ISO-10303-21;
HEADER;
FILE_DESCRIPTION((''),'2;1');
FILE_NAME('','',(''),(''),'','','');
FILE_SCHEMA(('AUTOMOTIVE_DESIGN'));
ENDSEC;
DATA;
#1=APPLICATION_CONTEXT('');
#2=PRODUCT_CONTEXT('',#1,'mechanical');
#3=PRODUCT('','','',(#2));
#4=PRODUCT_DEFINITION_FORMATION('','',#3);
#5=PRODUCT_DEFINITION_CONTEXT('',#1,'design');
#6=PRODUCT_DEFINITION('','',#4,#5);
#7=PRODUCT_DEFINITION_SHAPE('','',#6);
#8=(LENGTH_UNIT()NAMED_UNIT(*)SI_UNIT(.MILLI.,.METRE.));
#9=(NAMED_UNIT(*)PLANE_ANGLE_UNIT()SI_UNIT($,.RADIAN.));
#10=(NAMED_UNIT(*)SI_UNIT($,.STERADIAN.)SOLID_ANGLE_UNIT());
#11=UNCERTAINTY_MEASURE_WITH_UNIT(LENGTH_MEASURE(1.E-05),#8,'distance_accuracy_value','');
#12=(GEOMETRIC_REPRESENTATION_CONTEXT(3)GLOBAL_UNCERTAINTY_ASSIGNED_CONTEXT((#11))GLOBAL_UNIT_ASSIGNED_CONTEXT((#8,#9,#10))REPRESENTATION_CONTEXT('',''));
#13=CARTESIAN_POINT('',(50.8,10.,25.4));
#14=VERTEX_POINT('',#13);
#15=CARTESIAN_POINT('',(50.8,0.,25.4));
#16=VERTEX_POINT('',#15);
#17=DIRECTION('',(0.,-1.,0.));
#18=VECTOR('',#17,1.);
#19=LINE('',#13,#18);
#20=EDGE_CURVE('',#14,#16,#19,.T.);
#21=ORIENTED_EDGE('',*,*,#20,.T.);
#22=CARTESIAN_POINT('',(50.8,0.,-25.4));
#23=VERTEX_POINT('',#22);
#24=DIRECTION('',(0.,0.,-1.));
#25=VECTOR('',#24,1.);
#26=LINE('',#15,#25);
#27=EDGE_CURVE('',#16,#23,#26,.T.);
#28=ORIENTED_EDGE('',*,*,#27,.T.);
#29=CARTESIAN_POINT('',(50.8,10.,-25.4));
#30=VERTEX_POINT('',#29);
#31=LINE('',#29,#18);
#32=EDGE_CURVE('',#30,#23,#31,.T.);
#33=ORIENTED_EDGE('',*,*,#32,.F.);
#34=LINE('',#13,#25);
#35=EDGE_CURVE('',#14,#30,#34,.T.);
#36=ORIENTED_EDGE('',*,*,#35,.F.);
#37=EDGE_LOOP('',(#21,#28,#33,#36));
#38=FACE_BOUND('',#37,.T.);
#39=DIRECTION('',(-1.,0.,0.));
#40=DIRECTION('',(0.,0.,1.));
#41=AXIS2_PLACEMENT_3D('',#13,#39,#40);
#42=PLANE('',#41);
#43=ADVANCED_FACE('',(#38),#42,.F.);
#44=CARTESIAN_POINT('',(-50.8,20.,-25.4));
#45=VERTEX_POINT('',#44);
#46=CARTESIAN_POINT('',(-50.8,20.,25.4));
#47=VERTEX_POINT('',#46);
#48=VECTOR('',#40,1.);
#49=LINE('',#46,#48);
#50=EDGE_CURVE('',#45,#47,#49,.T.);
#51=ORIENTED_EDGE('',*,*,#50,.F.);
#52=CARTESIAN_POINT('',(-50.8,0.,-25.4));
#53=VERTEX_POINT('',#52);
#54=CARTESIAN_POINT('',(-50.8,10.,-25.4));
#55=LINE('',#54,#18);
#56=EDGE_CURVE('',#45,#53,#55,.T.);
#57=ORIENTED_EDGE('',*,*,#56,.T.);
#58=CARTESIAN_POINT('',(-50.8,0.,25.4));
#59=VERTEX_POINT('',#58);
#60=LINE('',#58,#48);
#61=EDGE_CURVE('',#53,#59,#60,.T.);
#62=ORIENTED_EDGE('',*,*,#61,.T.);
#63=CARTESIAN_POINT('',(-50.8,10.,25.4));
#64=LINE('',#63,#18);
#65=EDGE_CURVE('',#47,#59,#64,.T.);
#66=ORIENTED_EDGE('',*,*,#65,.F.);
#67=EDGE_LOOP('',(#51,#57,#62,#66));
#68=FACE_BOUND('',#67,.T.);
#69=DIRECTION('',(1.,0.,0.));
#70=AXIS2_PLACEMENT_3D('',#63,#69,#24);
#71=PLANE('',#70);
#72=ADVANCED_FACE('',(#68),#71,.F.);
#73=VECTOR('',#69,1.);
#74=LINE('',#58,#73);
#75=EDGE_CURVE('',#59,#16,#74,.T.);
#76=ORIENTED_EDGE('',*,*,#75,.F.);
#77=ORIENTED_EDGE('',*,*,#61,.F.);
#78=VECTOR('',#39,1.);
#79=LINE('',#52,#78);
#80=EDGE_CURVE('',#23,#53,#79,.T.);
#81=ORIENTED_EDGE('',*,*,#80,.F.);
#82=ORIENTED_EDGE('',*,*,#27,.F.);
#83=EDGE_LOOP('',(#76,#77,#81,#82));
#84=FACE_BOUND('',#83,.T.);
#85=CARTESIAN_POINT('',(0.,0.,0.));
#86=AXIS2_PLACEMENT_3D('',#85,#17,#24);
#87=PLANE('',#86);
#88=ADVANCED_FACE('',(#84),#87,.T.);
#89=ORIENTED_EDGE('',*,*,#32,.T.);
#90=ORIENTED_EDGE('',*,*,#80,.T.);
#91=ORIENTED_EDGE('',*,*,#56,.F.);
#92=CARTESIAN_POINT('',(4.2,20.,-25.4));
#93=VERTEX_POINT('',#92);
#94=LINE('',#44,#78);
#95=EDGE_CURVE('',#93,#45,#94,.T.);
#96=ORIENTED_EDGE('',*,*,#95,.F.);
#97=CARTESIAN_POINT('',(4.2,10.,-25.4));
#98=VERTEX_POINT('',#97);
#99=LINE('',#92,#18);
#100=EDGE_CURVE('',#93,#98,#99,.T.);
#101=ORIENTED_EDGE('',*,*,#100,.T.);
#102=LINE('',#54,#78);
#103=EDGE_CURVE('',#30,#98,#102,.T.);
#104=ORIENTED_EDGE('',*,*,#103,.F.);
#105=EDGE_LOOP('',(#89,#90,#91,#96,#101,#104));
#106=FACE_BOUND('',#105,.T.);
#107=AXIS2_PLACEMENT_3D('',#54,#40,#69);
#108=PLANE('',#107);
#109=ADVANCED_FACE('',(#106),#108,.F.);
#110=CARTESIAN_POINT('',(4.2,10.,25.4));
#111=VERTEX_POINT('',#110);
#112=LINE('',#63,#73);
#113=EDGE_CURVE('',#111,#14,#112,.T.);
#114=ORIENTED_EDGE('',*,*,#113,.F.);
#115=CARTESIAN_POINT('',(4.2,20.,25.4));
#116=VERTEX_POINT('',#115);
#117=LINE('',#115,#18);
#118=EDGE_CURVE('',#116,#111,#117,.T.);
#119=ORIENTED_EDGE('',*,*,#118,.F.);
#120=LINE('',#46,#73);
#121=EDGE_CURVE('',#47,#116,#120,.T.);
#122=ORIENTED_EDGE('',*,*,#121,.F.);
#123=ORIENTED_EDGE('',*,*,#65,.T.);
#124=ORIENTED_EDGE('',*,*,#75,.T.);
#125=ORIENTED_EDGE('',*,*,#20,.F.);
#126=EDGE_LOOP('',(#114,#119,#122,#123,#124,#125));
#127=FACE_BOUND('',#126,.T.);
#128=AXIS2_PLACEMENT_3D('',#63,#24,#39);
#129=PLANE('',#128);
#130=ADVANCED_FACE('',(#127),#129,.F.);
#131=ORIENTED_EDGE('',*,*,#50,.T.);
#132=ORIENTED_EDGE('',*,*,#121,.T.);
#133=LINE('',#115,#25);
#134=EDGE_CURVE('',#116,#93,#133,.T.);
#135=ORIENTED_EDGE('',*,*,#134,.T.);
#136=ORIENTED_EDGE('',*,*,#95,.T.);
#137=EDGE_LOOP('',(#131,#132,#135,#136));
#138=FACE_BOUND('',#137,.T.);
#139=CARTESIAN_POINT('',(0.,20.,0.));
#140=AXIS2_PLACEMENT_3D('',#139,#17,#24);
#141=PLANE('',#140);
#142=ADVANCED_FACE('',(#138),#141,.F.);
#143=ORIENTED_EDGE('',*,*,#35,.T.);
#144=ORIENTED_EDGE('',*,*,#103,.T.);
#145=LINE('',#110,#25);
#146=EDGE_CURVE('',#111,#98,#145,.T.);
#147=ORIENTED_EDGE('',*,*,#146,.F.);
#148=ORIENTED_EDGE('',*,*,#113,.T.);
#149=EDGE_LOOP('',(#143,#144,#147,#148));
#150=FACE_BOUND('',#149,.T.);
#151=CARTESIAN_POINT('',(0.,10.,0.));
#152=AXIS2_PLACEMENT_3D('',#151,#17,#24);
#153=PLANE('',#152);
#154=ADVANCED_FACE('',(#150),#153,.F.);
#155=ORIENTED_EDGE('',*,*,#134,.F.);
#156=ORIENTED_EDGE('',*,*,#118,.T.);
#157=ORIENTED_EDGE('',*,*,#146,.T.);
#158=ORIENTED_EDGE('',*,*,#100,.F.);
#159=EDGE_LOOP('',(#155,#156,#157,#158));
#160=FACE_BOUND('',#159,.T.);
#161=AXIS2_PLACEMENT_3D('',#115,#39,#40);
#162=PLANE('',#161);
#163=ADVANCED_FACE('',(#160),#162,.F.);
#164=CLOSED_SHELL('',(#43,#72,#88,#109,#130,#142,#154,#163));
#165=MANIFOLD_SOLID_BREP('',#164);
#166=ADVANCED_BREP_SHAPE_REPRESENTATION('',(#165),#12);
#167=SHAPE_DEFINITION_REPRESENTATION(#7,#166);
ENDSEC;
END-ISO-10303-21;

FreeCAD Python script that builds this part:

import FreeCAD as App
import Part
import Sketcher
from FreeCAD import Vector
Q = App.Units.Quantity


def add_polygon(sketch, points):
    """Adds a closed chain of lines whose ends are joined by coincident constraints."""
    first, n = sketch.GeometryCount, len(points)
    for a, b in zip(points, points[1:] + points[:1]):
        sketch.addGeometry(Part.LineSegment(App.Vector(*a, 0), App.Vector(*b, 0)), False)
    for i in range(n):
        sketch.addConstraint(Sketcher.Constraint("Coincident", first + i, 2, first + (i + 1) % n, 1))

doc = App.newDocument("Part")
body = doc.addObject("PartDesign::Body", "Body")

# Sketch on XZ plane
sketch1 = body.newObject("Sketcher::SketchObject", "Sketch")
sketch1.AttachmentSupport = (doc.getObject("XZ_Plane"), [""])
sketch1.MapMode = "FlatFace"
add_polygon(sketch1, [(-50.8, -25.4), (-50.8, 25.4), (50.8, 25.4), (50.8, -25.4)])  # lines 0-3
sketch1.addConstraint(Sketcher.Constraint("Vertical", 0))
sketch1.addConstraint(Sketcher.Constraint("Horizontal", 1))
sketch1.addConstraint(Sketcher.Constraint("Vertical", 2))
sketch1.addConstraint(Sketcher.Constraint("Horizontal", 3))
sketch1.addConstraint(Sketcher.Constraint("Symmetric", 0, 2, 2, 2, -1, 1))
sketch1.addConstraint(Sketcher.Constraint("DistanceX", 1, 1, 1, 2, Q("101.6 mm")))
sketch1.addConstraint(Sketcher.Constraint("DistanceY", 0, 1, 0, 2, Q("50.8 mm")))
pad1 = body.newObject("PartDesign::Pad", "Pad")
pad1.Profile = sketch1
pad1.Length = 10
pad1.Reversed = True

# Sketch on XZ plane
sketch2 = body.newObject("Sketcher::SketchObject", "Sketch001")
sketch2.AttachmentSupport = (doc.getObject("XZ_Plane"), [""])
sketch2.MapMode = "FlatFace"
sketch2.AttachmentOffset = App.Placement(Vector(0, 0, -10), App.Rotation())
add_polygon(sketch2, [(-50.8, -25.4), (-50.8, 25.4), (4.2, 25.4), (4.2, -25.4)])  # lines 0-3
sketch2.addConstraint(Sketcher.Constraint("Vertical", 0))
sketch2.addConstraint(Sketcher.Constraint("Horizontal", 1))
sketch2.addConstraint(Sketcher.Constraint("Vertical", 2))
sketch2.addConstraint(Sketcher.Constraint("Horizontal", 3))
sketch2.addConstraint(Sketcher.Constraint("DistanceX", 1, 1, 1, 2, Q("55 mm")))
sketch2.addConstraint(Sketcher.Constraint("DistanceY", 0, 1, 0, 2, Q("50.8 mm")))
sketch2.addConstraint(Sketcher.Constraint("DistanceX", 0, 2, -1, 1, Q("50.8 mm")))
sketch2.addConstraint(Sketcher.Constraint("DistanceY", -1, 1, 0, 2, Q("25.4 mm")))
pad2 = body.newObject("PartDesign::Pad", "Pad001")
pad2.Profile = sketch2
pad2.Length = 10
pad2.Reversed = True

doc.recompute()
